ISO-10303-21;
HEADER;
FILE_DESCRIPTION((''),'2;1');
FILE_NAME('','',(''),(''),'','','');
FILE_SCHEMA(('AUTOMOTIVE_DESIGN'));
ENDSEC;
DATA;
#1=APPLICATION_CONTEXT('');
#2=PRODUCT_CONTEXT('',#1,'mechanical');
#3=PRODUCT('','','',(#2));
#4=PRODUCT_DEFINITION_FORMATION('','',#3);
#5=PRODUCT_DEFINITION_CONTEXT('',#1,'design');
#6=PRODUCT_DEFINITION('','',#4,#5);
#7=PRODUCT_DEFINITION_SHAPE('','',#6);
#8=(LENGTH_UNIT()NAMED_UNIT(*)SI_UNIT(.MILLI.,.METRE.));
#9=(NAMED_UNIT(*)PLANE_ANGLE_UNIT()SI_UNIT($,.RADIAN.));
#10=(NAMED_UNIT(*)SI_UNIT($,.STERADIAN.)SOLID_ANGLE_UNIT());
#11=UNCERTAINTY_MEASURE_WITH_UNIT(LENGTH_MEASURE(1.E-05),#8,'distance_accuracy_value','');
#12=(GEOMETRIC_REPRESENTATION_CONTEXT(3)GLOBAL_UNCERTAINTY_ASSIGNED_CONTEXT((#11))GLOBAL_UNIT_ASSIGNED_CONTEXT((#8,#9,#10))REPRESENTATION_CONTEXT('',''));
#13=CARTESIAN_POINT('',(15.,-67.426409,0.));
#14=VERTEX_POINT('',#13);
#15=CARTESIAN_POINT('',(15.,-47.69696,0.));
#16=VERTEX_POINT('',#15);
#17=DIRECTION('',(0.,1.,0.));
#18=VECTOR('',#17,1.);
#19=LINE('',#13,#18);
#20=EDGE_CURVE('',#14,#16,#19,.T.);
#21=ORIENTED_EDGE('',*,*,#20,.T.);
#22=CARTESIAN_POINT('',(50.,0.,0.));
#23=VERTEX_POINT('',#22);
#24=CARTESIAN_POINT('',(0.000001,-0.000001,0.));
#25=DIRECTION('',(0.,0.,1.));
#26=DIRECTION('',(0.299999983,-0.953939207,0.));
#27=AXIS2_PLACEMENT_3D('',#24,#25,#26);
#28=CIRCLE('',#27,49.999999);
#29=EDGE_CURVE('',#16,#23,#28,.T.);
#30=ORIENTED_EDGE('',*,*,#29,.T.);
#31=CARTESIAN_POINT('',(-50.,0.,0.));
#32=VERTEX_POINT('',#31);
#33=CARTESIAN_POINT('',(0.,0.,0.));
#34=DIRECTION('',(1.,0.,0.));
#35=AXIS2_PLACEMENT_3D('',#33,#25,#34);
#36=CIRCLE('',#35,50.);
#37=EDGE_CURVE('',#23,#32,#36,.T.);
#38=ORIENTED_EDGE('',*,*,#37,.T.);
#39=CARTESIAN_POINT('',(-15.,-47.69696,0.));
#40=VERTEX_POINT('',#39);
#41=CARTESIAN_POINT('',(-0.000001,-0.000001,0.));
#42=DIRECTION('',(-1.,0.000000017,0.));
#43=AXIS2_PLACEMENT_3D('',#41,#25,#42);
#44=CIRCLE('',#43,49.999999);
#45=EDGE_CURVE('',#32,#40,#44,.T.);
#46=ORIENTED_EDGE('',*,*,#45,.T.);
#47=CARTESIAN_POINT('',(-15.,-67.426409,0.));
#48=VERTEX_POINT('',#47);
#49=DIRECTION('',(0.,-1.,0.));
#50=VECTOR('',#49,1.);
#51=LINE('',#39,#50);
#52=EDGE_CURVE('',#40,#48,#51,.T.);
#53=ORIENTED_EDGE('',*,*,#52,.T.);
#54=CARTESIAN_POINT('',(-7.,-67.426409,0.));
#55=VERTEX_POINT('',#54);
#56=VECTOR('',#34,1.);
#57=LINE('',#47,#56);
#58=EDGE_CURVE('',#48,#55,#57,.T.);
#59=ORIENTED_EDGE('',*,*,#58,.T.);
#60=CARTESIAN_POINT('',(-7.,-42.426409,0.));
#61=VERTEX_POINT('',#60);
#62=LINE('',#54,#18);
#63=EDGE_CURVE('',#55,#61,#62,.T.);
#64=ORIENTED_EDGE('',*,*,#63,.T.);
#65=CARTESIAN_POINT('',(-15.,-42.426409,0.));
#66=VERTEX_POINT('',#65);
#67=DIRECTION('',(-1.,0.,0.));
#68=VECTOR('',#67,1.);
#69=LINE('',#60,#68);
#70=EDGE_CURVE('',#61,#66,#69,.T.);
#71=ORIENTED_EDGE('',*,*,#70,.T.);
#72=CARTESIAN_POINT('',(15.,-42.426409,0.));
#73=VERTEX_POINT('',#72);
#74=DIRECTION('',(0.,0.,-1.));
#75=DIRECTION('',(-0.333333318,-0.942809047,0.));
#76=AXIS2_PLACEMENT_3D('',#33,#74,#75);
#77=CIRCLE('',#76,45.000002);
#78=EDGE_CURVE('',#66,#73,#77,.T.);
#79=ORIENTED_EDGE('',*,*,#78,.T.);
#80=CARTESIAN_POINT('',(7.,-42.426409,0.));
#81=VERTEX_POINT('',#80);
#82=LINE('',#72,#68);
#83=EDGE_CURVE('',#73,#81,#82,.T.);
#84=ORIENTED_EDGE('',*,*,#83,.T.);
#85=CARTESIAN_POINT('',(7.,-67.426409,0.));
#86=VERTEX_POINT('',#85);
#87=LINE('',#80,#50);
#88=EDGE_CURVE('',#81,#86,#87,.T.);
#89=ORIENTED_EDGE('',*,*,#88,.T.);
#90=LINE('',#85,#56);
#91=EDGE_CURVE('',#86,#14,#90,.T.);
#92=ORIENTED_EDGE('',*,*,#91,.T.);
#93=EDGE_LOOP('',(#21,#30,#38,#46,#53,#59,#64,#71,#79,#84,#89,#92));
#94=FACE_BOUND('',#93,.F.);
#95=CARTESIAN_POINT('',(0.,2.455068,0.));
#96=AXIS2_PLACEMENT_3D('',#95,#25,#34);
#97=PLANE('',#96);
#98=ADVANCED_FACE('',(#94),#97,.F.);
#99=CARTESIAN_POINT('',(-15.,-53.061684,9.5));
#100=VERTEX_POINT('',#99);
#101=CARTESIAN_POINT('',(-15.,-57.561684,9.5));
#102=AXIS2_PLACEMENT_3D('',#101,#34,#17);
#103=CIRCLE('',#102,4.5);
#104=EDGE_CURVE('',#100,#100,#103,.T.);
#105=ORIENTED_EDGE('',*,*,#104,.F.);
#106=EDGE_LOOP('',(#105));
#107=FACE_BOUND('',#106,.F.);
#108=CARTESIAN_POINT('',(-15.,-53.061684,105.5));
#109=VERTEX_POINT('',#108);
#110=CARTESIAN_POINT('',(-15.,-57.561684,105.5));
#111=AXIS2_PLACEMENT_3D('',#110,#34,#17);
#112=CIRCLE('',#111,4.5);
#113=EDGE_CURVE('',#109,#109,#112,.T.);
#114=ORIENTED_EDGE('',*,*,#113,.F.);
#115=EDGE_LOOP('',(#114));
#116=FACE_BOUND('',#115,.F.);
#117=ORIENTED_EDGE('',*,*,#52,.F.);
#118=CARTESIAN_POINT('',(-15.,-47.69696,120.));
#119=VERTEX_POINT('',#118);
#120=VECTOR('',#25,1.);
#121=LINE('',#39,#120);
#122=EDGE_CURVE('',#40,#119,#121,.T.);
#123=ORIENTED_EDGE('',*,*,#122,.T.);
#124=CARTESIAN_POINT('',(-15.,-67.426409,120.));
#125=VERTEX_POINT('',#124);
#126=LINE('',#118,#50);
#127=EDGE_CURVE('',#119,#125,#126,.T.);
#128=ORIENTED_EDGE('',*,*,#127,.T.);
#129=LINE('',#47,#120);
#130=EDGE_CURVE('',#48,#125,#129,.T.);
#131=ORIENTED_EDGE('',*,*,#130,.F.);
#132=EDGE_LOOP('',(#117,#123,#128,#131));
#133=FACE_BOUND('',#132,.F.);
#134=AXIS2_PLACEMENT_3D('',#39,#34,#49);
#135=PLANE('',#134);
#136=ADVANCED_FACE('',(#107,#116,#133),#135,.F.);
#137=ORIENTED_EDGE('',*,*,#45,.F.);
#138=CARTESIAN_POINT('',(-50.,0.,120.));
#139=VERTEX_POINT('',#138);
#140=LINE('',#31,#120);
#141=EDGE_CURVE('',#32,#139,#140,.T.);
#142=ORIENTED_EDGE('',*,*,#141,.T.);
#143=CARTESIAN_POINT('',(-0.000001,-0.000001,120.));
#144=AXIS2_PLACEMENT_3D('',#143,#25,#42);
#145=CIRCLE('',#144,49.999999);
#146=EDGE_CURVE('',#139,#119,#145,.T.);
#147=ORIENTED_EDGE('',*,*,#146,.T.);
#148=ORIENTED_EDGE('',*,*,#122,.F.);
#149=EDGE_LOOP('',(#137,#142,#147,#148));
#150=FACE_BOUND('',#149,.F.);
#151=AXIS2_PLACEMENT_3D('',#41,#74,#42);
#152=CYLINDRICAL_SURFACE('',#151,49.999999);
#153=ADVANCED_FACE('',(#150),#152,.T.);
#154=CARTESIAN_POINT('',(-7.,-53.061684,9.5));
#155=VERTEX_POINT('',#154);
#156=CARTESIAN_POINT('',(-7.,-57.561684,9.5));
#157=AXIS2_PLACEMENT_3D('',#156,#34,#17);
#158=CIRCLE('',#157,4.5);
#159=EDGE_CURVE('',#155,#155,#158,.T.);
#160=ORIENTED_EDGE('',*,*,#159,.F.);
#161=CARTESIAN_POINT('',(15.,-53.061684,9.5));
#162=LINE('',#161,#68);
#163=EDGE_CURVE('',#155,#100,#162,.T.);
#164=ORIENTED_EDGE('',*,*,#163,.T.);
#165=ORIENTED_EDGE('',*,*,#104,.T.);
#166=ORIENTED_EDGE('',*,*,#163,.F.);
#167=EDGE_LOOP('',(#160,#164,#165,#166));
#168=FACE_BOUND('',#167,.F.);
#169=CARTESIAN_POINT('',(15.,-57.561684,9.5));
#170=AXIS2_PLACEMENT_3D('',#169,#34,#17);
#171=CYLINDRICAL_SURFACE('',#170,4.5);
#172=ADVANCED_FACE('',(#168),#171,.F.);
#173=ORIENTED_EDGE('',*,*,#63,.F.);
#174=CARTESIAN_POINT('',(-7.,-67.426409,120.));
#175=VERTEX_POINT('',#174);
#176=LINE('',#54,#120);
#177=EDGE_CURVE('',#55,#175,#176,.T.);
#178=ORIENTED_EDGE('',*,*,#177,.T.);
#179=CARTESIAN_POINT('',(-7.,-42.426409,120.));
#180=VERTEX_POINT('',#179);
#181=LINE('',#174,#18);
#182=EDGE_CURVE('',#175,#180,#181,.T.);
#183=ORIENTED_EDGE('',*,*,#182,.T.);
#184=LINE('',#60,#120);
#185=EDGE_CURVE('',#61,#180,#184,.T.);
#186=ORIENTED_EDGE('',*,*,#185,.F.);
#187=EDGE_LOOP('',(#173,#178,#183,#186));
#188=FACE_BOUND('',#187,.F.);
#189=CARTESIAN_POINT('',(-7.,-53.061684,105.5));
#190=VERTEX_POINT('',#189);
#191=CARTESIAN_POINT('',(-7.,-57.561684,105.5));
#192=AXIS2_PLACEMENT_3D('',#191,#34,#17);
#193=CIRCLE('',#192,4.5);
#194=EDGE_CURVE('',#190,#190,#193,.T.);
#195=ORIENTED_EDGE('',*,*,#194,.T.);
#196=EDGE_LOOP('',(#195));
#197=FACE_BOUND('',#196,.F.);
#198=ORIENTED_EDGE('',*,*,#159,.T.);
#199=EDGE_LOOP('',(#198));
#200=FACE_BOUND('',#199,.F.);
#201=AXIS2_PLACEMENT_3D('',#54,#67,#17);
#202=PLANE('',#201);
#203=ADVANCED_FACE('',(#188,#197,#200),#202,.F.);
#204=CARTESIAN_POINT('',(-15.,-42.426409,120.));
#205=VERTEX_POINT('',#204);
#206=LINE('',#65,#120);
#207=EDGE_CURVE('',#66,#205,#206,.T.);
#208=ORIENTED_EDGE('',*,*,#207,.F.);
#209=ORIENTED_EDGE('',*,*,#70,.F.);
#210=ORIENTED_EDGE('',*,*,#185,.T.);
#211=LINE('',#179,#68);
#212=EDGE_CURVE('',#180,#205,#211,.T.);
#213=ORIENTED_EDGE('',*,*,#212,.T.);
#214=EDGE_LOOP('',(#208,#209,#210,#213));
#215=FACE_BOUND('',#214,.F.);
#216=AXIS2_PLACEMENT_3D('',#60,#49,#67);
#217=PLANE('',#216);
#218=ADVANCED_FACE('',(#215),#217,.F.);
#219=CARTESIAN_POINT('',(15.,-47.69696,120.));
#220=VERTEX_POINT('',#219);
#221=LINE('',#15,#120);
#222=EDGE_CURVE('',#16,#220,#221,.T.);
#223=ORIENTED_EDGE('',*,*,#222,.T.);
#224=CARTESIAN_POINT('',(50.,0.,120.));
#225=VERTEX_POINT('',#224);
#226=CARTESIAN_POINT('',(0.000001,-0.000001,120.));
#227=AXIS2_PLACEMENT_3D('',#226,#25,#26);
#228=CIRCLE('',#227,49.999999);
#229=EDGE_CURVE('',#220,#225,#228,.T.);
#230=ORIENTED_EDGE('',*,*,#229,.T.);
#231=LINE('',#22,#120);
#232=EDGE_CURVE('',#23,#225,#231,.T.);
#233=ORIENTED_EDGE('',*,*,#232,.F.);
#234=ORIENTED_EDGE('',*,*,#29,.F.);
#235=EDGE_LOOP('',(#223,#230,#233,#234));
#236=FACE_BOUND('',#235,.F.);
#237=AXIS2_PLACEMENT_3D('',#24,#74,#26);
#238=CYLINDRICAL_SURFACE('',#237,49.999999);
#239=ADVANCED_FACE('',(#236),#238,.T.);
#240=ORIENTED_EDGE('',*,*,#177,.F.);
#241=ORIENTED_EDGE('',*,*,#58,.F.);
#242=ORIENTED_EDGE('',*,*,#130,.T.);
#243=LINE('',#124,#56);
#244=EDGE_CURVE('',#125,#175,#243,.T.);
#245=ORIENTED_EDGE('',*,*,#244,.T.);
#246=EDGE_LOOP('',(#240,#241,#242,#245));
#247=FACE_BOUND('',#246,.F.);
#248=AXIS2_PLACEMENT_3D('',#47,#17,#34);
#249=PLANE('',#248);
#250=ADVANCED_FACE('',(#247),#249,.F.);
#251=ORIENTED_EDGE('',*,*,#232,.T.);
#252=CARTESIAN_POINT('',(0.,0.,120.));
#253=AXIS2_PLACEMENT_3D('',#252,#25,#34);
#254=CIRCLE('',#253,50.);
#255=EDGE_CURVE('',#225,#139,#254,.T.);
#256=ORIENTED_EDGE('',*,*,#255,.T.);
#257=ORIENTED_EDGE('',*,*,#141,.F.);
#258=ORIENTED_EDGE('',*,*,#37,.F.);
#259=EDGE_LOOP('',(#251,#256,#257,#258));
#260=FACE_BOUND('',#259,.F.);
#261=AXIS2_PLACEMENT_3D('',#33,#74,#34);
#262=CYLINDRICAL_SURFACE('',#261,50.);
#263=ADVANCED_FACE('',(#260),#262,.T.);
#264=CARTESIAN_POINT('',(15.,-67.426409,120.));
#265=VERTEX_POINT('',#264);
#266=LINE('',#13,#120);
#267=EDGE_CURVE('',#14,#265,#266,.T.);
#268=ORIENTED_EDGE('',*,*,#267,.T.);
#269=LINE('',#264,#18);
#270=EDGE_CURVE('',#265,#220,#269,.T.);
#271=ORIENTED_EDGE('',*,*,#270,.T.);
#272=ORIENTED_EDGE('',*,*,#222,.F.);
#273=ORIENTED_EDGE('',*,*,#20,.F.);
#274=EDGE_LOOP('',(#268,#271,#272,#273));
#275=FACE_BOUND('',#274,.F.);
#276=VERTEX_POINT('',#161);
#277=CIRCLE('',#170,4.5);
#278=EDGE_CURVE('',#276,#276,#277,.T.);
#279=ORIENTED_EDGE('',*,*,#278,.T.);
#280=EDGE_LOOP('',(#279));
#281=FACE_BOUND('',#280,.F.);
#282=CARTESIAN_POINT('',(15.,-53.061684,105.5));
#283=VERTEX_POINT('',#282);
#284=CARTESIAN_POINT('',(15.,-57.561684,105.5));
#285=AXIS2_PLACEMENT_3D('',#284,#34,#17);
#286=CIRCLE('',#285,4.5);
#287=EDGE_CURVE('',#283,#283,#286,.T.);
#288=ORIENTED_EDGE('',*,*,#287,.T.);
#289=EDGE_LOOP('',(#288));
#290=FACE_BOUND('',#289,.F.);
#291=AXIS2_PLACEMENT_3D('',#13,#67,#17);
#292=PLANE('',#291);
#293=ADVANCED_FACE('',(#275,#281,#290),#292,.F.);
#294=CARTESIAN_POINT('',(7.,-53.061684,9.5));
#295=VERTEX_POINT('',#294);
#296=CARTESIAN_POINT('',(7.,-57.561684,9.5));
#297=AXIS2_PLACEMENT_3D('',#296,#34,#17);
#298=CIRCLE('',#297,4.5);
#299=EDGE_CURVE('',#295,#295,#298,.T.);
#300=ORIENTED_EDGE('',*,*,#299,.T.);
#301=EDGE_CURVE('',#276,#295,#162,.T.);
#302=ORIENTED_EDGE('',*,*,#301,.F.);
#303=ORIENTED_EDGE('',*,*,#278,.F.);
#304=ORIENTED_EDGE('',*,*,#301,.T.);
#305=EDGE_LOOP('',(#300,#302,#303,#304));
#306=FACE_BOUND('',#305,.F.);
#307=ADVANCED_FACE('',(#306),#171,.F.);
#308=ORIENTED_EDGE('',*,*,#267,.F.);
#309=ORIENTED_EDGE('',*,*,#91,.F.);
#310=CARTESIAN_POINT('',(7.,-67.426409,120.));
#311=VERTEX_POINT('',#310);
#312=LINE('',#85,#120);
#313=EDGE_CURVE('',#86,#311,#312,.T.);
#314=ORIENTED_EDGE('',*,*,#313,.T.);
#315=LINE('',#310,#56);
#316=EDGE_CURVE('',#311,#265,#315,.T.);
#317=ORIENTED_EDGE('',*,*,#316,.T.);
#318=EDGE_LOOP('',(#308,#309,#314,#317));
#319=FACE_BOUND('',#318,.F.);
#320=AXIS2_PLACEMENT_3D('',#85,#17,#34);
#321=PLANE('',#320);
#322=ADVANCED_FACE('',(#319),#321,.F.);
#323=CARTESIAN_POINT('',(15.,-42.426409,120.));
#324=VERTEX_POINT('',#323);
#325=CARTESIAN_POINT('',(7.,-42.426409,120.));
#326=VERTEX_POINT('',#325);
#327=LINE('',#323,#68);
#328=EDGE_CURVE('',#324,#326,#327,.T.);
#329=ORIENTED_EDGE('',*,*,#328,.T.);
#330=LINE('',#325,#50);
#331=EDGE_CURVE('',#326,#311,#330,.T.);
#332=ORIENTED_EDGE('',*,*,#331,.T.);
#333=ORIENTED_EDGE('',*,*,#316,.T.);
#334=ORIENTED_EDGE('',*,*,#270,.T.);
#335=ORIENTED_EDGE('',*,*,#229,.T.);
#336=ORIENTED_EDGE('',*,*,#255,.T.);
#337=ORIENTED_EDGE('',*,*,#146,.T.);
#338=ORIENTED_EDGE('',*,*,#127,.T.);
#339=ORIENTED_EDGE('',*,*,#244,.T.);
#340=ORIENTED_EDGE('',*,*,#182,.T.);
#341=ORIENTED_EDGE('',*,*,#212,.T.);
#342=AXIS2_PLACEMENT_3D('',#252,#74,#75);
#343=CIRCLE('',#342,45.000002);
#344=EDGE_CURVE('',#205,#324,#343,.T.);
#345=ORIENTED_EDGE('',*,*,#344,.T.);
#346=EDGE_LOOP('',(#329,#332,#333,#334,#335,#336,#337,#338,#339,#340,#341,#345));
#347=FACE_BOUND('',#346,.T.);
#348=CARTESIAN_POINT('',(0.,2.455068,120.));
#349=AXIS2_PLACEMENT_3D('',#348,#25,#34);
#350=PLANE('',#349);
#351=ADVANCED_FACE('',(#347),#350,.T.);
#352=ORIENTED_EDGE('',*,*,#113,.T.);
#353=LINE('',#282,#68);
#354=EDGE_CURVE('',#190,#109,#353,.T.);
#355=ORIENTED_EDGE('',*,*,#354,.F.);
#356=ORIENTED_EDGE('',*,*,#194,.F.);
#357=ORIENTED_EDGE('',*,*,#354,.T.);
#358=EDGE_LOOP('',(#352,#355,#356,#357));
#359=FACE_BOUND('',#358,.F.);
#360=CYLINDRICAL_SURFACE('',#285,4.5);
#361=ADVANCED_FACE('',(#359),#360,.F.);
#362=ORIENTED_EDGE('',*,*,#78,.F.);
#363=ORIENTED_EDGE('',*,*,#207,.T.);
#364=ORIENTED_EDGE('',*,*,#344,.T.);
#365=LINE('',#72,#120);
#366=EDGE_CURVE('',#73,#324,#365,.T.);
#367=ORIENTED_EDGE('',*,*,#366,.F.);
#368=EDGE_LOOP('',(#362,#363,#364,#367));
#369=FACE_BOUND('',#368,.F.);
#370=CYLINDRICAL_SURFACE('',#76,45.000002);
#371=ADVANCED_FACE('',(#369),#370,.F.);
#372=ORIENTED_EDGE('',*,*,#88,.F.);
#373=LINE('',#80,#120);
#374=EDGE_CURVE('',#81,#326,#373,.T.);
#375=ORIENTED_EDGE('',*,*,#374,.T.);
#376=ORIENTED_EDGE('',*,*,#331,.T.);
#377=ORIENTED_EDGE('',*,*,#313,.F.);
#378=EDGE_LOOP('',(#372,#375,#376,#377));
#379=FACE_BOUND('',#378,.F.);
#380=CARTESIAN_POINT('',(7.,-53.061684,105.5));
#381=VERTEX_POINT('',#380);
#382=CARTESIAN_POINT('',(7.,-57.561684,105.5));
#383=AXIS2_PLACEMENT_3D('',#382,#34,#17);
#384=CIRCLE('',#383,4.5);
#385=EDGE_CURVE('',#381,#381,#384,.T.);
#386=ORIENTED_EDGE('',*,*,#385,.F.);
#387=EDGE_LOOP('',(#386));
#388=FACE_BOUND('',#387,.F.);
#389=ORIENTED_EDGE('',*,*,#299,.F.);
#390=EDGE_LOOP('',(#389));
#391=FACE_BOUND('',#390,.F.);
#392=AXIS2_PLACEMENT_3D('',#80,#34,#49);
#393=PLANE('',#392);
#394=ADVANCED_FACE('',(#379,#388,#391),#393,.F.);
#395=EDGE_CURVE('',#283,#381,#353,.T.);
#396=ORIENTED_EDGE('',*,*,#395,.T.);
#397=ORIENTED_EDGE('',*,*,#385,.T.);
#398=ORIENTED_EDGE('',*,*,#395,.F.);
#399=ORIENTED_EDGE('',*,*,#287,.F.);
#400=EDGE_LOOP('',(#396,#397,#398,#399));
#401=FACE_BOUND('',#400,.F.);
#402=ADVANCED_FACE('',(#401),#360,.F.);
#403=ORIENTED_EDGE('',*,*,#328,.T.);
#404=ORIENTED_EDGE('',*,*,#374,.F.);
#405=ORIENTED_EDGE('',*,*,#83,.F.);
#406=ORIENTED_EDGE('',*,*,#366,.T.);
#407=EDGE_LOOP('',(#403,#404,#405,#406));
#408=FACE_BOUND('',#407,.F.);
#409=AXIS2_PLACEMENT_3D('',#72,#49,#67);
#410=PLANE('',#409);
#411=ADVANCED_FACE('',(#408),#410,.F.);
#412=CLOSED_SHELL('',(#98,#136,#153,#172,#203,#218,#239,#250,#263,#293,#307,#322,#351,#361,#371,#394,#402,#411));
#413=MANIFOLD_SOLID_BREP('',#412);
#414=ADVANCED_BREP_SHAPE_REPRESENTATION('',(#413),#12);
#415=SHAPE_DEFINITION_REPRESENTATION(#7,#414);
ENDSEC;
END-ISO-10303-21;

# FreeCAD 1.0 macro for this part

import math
import FreeCAD as App
import Part
import Sketcher
from FreeCAD import Vector

doc = App.newDocument("Part")
body = doc.addObject("PartDesign::Body", "Body")

# Sketch on XY plane
sketch1 = body.newObject("Sketcher::SketchObject", "Sketch")
sketch1.AttachmentSupport = (doc.getObject("XY_Plane"), [""])
sketch1.MapMode = "FlatFace"
sketch1.addGeometry([
    Part.ArcOfCircle(Part.Circle(Vector(0, 0, 0), Vector(0, 0, 1), 45.000002), math.radians(-70.52878), math.radians(250.52878)),  # 0
    Part.LineSegment(Vector(15, -42.426409, 0), Vector(7, -42.426409, 0)),  # 1
    Part.LineSegment(Vector(7, -42.426409, 0), Vector(7, -67.426409, 0)),  # 2
    Part.LineSegment(Vector(7, -67.426409, 0), Vector(15, -67.426409, 0)),  # 3
    Part.LineSegment(Vector(15, -67.426409, 0), Vector(15, -47.69696, 0)),  # 4
    Part.ArcOfCircle(Part.Circle(Vector(0.000001, -0.000001, 0), Vector(0, 0, 1), 49.999999), math.radians(-72.542398), math.radians(0.000001)),  # 5
    Part.ArcOfCircle(Part.Circle(Vector(0, 0, 0), Vector(0, 0, 1), 50), math.radians(0), math.radians(180)),  # 6
    Part.ArcOfCircle(Part.Circle(Vector(-0.000001, -0.000001, 0), Vector(0, 0, 1), 49.999999), math.radians(179.999999), math.radians(252.542398)),  # 7
    Part.LineSegment(Vector(-15, -47.69696, 0), Vector(-15, -67.426409, 0)),  # 8
    Part.LineSegment(Vector(-15, -67.426409, 0), Vector(-7, -67.426409, 0)),  # 9
    Part.LineSegment(Vector(-7, -67.426409, 0), Vector(-7, -42.426409, 0)),  # 10
    Part.LineSegment(Vector(-7, -42.426409, 0), Vector(-15, -42.426409, 0)),  # 11
], False)
sketch1.addConstraint([
    Sketcher.Constraint("Coincident", 0, 1, 1, 1),
    Sketcher.Constraint("Coincident", 1, 2, 2, 1),
    Sketcher.Constraint("Coincident", 2, 2, 3, 1),
    Sketcher.Constraint("Coincident", 3, 2, 4, 1),
    Sketcher.Constraint("Coincident", 4, 2, 5, 1),
    Sketcher.Constraint("Tangent", 5, 2, 6, 1),
    Sketcher.Constraint("Tangent", 6, 2, 7, 1),
    Sketcher.Constraint("Coincident", 7, 2, 8, 1),
    Sketcher.Constraint("Coincident", 8, 2, 9, 1),
    Sketcher.Constraint("Coincident", 9, 2, 10, 1),
    Sketcher.Constraint("Coincident", 10, 2, 11, 1),
    Sketcher.Constraint("Coincident", 11, 2, 0, 2),
    Sketcher.Constraint("Horizontal", 1),
    Sketcher.Constraint("Vertical", 2),
    Sketcher.Constraint("Horizontal", 3),
    Sketcher.Constraint("Vertical", 4),
    Sketcher.Constraint("Vertical", 8),
    Sketcher.Constraint("Horizontal", 9),
    Sketcher.Constraint("Vertical", 10),
    Sketcher.Constraint("Horizontal", 11),
    Sketcher.Constraint("Coincident", 0, 3, -1, 1),
    Sketcher.Constraint("Coincident", 5, 3, -1, 1),
    Sketcher.Constraint("Equal", 5, 6),
    Sketcher.Constraint("Equal", 6, 7),
    Sketcher.Constraint("Symmetric", 3, 2, 8, 2, -2),
    Sketcher.Constraint("Symmetric", 1, 2, 10, 2, -2),
    Sketcher.Constraint("PointOnObject", 5, 2, -1),
    Sketcher.Constraint("PointOnObject", 6, 2, -1),
    Sketcher.Constraint("Vertical", 0, 1, 3, 2),
    Sketcher.Constraint("Radius", 5, 49.999999),
    Sketcher.Constraint("DistanceX", 1, 2, 1, 1, 8.0),
    Sketcher.Constraint("DistanceY", 2, 2, 2, 1, 25.0),
    Sketcher.Constraint("DistanceX", -1, 1, 0, 1, 15.0),
    Sketcher.Constraint("Radius", 0, 45.000002),
])
pad1 = body.newObject("PartDesign::Pad", "Pad")
pad1.Profile = sketch1
pad1.Length = 120

# Sketch on YZ plane
sketch2 = body.newObject("Sketcher::SketchObject", "Sketch001")
sketch2.AttachmentSupport = (doc.getObject("YZ_Plane"), [""])
sketch2.MapMode = "FlatFace"
sketch2.AttachmentOffset = App.Placement(Vector(0, 0, 15), App.Rotation())
sketch2.addGeometry([
    Part.Circle(Vector(-57.561684, 105.5, 0), Vector(0, 0, 1), 4.5),
    Part.Circle(Vector(-57.561684, 9.5, 0), Vector(0, 0, 1), 4.5),
], False)
sketch2.addConstraint([
    Sketcher.Constraint("Equal", 0, 1),
    Sketcher.Constraint("Vertical", 0, 3, 1, 3),
    Sketcher.Constraint("Diameter", 0, 9.0),
    Sketcher.Constraint("DistanceY", 1, 3, 0, 3, 96.0),
    Sketcher.Constraint("DistanceY", -1, 1, 0, 3, 105.5),
    Sketcher.Constraint("DistanceX", 0, 3, -1, 1, 57.561684),
])
pocket1 = body.newObject("PartDesign::Pocket", "Pocket")
pocket1.Profile = sketch2
pocket1.Length = 50

doc.recompute()
